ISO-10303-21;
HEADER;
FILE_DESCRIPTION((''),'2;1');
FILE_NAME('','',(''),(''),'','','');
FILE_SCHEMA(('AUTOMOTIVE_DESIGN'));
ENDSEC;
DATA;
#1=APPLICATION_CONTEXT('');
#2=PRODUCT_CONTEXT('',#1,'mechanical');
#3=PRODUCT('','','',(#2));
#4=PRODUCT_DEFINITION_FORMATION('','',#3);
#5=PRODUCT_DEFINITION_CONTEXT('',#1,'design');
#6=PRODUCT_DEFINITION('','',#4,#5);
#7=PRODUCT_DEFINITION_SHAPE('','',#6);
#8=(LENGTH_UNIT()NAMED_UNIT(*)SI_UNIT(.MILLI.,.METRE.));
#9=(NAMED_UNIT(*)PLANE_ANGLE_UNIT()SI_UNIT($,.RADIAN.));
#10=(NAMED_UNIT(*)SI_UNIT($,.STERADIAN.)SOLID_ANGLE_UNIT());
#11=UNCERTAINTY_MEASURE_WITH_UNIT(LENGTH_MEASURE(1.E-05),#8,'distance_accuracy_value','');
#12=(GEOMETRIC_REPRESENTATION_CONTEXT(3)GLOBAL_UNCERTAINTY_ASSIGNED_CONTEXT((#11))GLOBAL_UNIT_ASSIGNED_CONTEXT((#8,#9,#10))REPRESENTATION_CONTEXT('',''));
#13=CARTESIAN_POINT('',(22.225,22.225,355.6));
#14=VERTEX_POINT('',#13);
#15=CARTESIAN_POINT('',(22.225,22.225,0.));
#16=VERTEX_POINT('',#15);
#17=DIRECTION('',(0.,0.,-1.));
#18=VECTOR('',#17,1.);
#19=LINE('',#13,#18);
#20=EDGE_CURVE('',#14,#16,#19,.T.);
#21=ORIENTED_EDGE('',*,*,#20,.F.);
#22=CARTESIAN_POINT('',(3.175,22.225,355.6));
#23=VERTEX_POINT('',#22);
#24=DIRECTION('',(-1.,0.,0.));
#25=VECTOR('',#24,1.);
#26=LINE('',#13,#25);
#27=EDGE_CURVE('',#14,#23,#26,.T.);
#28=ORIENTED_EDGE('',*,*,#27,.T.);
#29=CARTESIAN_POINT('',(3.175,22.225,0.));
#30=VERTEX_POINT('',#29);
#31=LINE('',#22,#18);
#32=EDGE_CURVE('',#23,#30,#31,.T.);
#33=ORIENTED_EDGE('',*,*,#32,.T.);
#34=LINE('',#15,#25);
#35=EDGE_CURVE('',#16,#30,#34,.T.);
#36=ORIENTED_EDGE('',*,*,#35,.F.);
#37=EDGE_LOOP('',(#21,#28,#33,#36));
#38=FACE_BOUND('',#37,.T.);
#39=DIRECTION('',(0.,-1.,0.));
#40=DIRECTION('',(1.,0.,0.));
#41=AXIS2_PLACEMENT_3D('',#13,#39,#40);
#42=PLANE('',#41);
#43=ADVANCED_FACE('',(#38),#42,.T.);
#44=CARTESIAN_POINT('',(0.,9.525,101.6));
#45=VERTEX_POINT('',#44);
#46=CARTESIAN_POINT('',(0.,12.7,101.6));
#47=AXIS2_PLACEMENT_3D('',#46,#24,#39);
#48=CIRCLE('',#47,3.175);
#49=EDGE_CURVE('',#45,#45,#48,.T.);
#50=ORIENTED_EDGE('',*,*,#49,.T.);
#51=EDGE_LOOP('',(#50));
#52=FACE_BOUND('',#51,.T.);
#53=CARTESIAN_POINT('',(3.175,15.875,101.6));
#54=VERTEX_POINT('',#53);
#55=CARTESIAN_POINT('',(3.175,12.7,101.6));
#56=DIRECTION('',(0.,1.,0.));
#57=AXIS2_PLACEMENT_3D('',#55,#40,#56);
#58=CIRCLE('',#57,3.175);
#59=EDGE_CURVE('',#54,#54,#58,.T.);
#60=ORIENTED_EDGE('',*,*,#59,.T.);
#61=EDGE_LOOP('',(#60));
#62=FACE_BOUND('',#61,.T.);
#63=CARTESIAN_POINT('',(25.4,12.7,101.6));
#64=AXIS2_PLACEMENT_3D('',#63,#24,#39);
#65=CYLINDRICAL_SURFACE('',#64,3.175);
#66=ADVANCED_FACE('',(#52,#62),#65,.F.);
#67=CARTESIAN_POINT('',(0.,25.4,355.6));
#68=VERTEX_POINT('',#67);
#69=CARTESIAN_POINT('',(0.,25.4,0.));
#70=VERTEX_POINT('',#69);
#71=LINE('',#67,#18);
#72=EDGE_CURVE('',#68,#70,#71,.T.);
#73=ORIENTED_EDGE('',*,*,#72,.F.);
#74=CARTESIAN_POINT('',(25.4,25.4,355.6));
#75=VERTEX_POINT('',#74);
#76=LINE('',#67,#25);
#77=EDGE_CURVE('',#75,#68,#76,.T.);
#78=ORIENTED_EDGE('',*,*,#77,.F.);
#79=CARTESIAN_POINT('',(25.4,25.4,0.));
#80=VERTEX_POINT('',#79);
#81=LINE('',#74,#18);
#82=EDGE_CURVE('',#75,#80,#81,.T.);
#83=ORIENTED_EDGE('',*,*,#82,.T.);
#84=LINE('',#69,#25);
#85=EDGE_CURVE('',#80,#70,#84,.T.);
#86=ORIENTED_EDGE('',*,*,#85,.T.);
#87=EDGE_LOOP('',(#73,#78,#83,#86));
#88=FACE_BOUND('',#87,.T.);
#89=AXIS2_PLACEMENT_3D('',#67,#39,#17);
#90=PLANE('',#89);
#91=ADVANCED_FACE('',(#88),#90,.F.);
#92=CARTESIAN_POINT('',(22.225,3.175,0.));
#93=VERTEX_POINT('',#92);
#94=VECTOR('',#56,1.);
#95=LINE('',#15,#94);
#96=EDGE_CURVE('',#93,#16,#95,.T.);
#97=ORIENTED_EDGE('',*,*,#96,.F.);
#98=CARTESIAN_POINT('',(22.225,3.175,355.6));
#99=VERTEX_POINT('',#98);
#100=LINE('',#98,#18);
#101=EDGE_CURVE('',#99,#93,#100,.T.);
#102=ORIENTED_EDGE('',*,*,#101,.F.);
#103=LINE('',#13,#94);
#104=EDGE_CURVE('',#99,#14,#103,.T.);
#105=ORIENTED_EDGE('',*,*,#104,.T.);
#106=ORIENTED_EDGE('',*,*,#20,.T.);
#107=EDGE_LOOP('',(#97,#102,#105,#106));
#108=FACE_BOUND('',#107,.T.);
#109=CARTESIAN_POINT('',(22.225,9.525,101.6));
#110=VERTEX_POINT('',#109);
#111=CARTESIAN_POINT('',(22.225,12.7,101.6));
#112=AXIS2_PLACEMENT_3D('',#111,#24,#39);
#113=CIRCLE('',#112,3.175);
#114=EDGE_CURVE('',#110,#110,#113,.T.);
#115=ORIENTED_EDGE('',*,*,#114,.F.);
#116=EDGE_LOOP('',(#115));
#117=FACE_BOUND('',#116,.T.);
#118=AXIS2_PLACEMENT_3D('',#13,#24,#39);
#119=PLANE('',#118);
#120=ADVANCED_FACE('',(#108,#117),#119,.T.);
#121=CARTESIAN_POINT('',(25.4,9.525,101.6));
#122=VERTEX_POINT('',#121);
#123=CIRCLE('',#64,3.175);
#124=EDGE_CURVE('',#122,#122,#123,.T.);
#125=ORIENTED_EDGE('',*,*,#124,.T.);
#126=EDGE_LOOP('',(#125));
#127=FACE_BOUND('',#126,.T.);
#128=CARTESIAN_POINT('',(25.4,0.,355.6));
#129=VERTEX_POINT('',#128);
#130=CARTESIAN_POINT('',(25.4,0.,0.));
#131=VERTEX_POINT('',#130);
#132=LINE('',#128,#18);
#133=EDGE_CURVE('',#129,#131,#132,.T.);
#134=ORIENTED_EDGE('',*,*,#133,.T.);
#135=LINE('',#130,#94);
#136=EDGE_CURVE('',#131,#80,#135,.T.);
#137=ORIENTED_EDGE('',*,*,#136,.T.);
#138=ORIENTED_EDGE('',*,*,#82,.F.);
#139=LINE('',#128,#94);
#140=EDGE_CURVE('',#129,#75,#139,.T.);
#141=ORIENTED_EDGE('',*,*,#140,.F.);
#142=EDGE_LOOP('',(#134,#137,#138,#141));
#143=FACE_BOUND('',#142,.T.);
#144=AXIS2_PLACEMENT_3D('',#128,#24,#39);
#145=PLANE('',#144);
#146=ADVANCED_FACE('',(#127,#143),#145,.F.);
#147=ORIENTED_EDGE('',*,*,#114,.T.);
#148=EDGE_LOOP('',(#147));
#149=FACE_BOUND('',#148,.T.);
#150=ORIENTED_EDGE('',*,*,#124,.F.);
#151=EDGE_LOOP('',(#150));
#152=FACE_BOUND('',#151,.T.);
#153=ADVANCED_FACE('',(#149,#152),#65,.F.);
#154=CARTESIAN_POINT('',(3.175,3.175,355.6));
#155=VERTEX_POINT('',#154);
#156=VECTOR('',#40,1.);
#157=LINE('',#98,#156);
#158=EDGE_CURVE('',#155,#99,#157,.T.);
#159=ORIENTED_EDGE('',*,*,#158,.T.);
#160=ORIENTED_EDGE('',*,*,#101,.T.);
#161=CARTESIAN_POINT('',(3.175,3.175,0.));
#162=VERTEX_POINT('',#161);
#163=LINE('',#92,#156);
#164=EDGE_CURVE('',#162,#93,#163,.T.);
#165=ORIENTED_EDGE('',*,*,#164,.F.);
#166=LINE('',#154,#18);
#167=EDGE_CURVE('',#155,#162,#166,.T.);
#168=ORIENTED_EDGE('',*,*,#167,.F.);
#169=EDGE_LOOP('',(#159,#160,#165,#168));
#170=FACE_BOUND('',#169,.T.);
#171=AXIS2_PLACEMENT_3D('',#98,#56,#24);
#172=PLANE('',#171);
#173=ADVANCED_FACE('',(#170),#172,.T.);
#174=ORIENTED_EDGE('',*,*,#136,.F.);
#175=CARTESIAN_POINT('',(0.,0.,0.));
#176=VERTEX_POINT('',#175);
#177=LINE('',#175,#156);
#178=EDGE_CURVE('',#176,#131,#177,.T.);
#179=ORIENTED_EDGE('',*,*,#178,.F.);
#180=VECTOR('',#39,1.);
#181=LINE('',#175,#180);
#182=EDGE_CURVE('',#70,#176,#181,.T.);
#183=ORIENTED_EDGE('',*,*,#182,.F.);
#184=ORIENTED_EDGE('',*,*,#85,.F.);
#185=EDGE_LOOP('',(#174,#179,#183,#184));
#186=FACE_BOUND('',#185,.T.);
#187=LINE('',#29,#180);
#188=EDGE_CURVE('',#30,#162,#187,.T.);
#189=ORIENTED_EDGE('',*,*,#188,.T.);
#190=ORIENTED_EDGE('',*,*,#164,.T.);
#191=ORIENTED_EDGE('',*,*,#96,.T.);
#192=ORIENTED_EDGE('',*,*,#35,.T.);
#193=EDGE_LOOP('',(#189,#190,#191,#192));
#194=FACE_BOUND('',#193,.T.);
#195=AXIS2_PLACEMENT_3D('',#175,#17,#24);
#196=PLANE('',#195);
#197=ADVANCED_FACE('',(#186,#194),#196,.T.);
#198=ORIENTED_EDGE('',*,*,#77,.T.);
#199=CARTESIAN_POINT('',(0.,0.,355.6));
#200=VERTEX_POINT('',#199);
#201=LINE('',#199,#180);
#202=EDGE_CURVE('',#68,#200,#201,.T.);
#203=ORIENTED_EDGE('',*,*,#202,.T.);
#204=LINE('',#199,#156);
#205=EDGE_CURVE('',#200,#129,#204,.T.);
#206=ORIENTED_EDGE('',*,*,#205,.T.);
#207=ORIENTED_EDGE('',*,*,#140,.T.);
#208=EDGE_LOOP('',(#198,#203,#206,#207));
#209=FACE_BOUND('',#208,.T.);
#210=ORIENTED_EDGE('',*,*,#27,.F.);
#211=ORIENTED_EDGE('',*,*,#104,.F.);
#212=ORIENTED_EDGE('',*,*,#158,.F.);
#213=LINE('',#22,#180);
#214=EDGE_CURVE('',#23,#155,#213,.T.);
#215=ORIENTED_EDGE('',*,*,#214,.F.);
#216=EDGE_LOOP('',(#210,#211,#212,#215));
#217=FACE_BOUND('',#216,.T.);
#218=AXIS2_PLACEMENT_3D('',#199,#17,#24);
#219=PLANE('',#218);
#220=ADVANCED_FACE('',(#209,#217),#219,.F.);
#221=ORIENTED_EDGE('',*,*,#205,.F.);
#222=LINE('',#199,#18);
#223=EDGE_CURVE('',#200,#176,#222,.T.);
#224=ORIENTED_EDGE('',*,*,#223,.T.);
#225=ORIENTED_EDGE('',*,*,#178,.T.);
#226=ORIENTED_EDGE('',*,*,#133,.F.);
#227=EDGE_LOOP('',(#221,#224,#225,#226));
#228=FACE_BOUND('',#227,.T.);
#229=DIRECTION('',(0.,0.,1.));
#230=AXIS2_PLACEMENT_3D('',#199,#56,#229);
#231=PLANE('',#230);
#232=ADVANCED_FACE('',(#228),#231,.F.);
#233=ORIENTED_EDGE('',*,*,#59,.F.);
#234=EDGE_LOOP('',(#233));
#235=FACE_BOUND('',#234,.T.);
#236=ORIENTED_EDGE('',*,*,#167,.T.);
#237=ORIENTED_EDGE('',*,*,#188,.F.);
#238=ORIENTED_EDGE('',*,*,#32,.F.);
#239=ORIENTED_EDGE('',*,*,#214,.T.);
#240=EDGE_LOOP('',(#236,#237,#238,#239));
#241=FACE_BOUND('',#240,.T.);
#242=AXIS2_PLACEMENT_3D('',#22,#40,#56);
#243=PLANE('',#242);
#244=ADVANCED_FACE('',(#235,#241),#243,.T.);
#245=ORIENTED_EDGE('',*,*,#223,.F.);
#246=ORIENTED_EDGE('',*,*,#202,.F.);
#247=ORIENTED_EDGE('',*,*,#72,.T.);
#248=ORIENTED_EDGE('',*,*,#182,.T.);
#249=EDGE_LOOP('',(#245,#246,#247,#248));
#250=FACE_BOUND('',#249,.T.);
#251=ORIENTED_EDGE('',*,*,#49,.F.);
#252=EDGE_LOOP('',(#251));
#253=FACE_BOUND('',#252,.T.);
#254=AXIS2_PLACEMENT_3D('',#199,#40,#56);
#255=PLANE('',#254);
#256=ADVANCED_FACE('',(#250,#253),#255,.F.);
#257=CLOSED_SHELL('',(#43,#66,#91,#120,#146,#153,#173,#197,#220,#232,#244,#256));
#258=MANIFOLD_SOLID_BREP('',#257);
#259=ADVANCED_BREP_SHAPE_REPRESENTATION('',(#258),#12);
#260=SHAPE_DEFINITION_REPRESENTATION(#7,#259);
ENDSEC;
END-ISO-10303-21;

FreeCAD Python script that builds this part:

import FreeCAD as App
import Part
import Sketcher
Q = App.Units.Quantity

doc = App.newDocument("Part")
body = doc.addObject("PartDesign::Body", "Body")

# Sketch on XY plane
sketch1 = body.newObject("Sketcher::SketchObject", "Sketch")
sketch1.AttachmentSupport = (doc.getObject("XY_Plane"), [""])
sketch1.MapMode = "FlatFace"
sketch1.addGeometry([
    Part.LineSegment(App.Vector(0, 25.4, 0), App.Vector(0, 0, 0)),  # 0
    Part.LineSegment(App.Vector(0, 0, 0), App.Vector(25.4, 0, 0)),  # 1
    Part.LineSegment(App.Vector(25.4, 0, 0), App.Vector(25.4, 25.4, 0)),  # 2
    Part.LineSegment(App.Vector(25.4, 25.4, 0), App.Vector(0, 25.4, 0)),  # 3
    Part.LineSegment(App.Vector(22.225, 3.175, 0), App.Vector(3.175, 3.175, 0)),  # 4
    Part.LineSegment(App.Vector(3.175, 3.175, 0), App.Vector(3.175, 22.225, 0)),  # 5
    Part.LineSegment(App.Vector(3.175, 22.225, 0), App.Vector(22.225, 22.225, 0)),  # 6
    Part.LineSegment(App.Vector(22.225, 22.225, 0), App.Vector(22.225, 3.175, 0)),  # 7
], False)
sketch1.addConstraint([
    Sketcher.Constraint("Coincident", 0, 2, 1, 1),
    Sketcher.Constraint("Coincident", 1, 2, 2, 1),
    Sketcher.Constraint("Coincident", 2, 2, 3, 1),
    Sketcher.Constraint("Coincident", 3, 2, 0, 1),
    Sketcher.Constraint("Coincident", 4, 2, 5, 1),
    Sketcher.Constraint("Coincident", 5, 2, 6, 1),
    Sketcher.Constraint("Coincident", 6, 2, 7, 1),
    Sketcher.Constraint("Coincident", 7, 2, 4, 1),
    Sketcher.Constraint("Vertical", 0),
    Sketcher.Constraint("Horizontal", 1),
    Sketcher.Constraint("Vertical", 2),
    Sketcher.Constraint("Horizontal", 3),
    Sketcher.Constraint("Horizontal", 4),
    Sketcher.Constraint("Vertical", 5),
    Sketcher.Constraint("Horizontal", 6),
    Sketcher.Constraint("Vertical", 7),
    Sketcher.Constraint("Coincident", 0, 2, -1, 1),
    Sketcher.Constraint("Equal", 3, 0),
    Sketcher.Constraint("Equal", 6, 5),
    Sketcher.Constraint("DistanceX", 1, 1, 1, 2, Q("1 in")),
    Sketcher.Constraint("DistanceX", 4, 2, 4, 1, Q("0.75 in")),
    Sketcher.Constraint("DistanceX", -1, 1, 4, 2, Q("0.125 in")),
    Sketcher.Constraint("DistanceY", -1, 1, 4, 2, Q("0.125 in")),
])
pad1 = body.newObject("PartDesign::Pad", "Pad")
pad1.Profile = sketch1
pad1.Length = Q("14 in")

# Sketch on YZ plane
sketch2 = body.newObject("Sketcher::SketchObject", "Sketch001")
sketch2.AttachmentSupport = (doc.getObject("YZ_Plane"), [""])
sketch2.MapMode = "FlatFace"
sketch2.addGeometry(Part.Circle(App.Vector(12.7, 101.6, 0), App.Vector(0, 0, 1), 3.175), False)
sketch2.addConstraint([
    Sketcher.Constraint("Diameter", 0, Q("0.25 in")),
    Sketcher.Constraint("DistanceY", -1, 1, 0, 3, Q("4 in")),
    Sketcher.Constraint("DistanceX", -1, 1, 0, 3, Q("0.5 in")),
])
pocket1 = body.newObject("PartDesign::Pocket", "Pocket")
pocket1.Profile = sketch2
pocket1.Type = "ThroughAll"
pocket1.Reversed = True

doc.recompute()
